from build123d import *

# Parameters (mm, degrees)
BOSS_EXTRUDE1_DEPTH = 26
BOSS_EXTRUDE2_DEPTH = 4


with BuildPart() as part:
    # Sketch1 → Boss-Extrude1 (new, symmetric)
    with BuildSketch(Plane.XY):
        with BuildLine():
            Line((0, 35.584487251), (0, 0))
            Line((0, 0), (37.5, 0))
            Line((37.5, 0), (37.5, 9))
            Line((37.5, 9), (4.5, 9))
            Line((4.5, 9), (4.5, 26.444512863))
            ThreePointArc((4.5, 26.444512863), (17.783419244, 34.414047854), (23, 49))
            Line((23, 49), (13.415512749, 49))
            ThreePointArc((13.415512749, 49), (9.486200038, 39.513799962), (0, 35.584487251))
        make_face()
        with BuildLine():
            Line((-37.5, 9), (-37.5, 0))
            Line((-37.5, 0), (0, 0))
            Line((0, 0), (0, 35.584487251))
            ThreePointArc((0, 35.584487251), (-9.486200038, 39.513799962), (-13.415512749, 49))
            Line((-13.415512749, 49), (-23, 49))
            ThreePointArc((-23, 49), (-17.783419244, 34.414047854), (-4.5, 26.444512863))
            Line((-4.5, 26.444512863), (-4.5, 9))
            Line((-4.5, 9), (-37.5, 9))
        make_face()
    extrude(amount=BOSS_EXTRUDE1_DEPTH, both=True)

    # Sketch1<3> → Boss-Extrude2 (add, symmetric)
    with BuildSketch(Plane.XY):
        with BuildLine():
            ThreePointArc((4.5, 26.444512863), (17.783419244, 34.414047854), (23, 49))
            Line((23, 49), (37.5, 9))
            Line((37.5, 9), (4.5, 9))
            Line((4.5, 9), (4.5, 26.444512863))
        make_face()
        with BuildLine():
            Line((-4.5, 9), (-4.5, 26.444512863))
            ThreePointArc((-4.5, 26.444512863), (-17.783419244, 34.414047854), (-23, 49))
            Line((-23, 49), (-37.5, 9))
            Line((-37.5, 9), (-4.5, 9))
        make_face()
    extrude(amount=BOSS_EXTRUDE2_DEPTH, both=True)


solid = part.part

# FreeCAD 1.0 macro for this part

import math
import FreeCAD as App
import Part
import Sketcher
from FreeCAD import Vector

doc = App.newDocument("Part")
params = doc.addObject("Spreadsheet::Sheet", "Params")
for row, (alias, value) in enumerate([
    ("sketch1_radius", "23 mm"),
    ("sketch1_width", "33 mm"),
    ("sketch1_width2", "75 mm"),
    ("sketch1_height", "9 mm"),
    ("pad1_length", "52 mm"),
    ("sketch2_radius", "23 mm"),
    ("sketch2_width", "33 mm"),
    ("pad2_length", "8 mm"),
], start=1):
    params.set(f"A{row}", alias)
    params.set(f"B{row}", "=" + value)
    params.setAlias(f"B{row}", alias)

body = doc.addObject("PartDesign::Body", "Body")

sketch1 = doc.addObject("Sketcher::SketchObject", "Sketch")
body.addObject(sketch1)
sketch1.AttachmentSupport = (doc.XY_Plane, [""])
sketch1.MapMode = "FlatFace"
sketch1.addGeometry([
    Part.LineSegment(Vector(38, 0, 0), Vector(38, 9, 0)),
    Part.LineSegment(Vector(38, 9, 0), Vector(4, 9, 0)),
    Part.LineSegment(Vector(4, 9, 0), Vector(4, 26, 0)),
    Part.ArcOfCircle(Part.Circle(Vector(0, 49, 0), Vector(0, 0, 1), 23), math.radians(-79), math.radians(0)),
    Part.LineSegment(Vector(23, 49, 0), Vector(13, 49, 0)),
    Part.ArcOfCircle(Part.Circle(Vector(0, 49, 0), Vector(0, 0, 1), 13), math.radians(-90), math.radians(0)),
    Part.ArcOfCircle(Part.Circle(Vector(0, 49, 0), Vector(0, 0, 1), 13), math.radians(180), math.radians(270)),
    Part.LineSegment(Vector(-13, 49, 0), Vector(-23, 49, 0)),
    Part.ArcOfCircle(Part.Circle(Vector(0, 49, 0), Vector(0, 0, 1), 23), math.radians(180), math.radians(259)),
    Part.LineSegment(Vector(-4, 26, 0), Vector(-4, 9, 0)),
    Part.LineSegment(Vector(-4, 9, 0), Vector(-38, 9, 0)),
    Part.LineSegment(Vector(-38, 9, 0), Vector(-38, 0, 0)),
    Part.LineSegment(Vector(-38, 0, 0), Vector(38, 0, 0)),
], False)
sketch1.addConstraint([
    Sketcher.Constraint("Coincident", 0, 2, 1, 1),
    Sketcher.Constraint("Coincident", 1, 2, 2, 1),
    Sketcher.Constraint("Coincident", 2, 2, 3, 1),
    Sketcher.Constraint("Coincident", 3, 2, 4, 1),
    Sketcher.Constraint("Coincident", 4, 2, 5, 2),
    Sketcher.Constraint("Tangent", 5, 1, 6, 2),
    Sketcher.Constraint("Coincident", 6, 1, 7, 1),
    Sketcher.Constraint("Coincident", 7, 2, 8, 1),
    Sketcher.Constraint("Coincident", 8, 2, 9, 1),
    Sketcher.Constraint("Coincident", 9, 2, 10, 1),
    Sketcher.Constraint("Coincident", 10, 2, 11, 1),
    Sketcher.Constraint("Coincident", 11, 2, 12, 1),
    Sketcher.Constraint("Coincident", 12, 2, 0, 1),
    Sketcher.Constraint("Vertical", 0),
    Sketcher.Constraint("Horizontal", 1),
    Sketcher.Constraint("Vertical", 2),
    Sketcher.Constraint("Horizontal", 4),
    Sketcher.Constraint("Horizontal", 7),
    Sketcher.Constraint("Vertical", 9),
    Sketcher.Constraint("Horizontal", 10),
    Sketcher.Constraint("Vertical", 11),
    Sketcher.Constraint("Horizontal", 12),
    Sketcher.Constraint("Coincident", 5, 3, 3, 3),
    Sketcher.Constraint("Coincident", 8, 3, 3, 3),
    Sketcher.Constraint("Equal", 5, 6),
    Sketcher.Constraint("Equal", 3, 8),
    Sketcher.Constraint("Symmetric", 11, 2, 12, 2, -1, 1),
    Sketcher.Constraint("Symmetric", 4, 2, 6, 1, -2),
    Sketcher.Constraint("Symmetric", 1, 2, 9, 2, -2),
    Sketcher.Constraint("PointOnObject", 5, 1, -2),
    Sketcher.Constraint("Horizontal", 8, 3, 3, 2),
    Sketcher.Constraint("Radius", 3, 23.0),
    Sketcher.Constraint("DistanceX", 1, 2, 1, 1, 33.0),
    Sketcher.Constraint("DistanceX", 12, 1, 12, 2, 75.0),
    Sketcher.Constraint("DistanceY", 0, 1, 0, 2, 9.0),
    Sketcher.Constraint("DistanceY", -1, 1, 3, 3, 49.0),
    Sketcher.Constraint("Radius", 5, 13.415513),
])
sketch1.setExpression("Constraints[31]", "Params.sketch1_radius")
sketch1.setExpression("Constraints[32]", "Params.sketch1_width")
sketch1.setExpression("Constraints[33]", "Params.sketch1_width2")
sketch1.setExpression("Constraints[34]", "Params.sketch1_height")
pad1 = doc.addObject("PartDesign::Pad", "Pad")
body.addObject(pad1)
pad1.Profile = sketch1
pad1.setExpression("Length", "Params.pad1_length")
pad1.Midplane = True

sketch2 = doc.addObject("Sketcher::SketchObject", "Sketch001")
body.addObject(sketch2)
sketch2.AttachmentSupport = (doc.XY_Plane, [""])
sketch2.MapMode = "FlatFace"
sketch2.addGeometry([
    Part.ArcOfCircle(Part.Circle(Vector(0, 49, 0), Vector(0, 0, 1), 23), math.radians(-79), math.radians(0)),
    Part.LineSegment(Vector(4, 26, 0), Vector(4, 9, 0)),
    Part.LineSegment(Vector(4, 9, 0), Vector(38, 9, 0)),
    Part.LineSegment(Vector(38, 9, 0), Vector(23, 49, 0)),
    Part.LineSegment(Vector(-4, 9, 0), Vector(-4, 26, 0)),
    Part.ArcOfCircle(Part.Circle(Vector(0, 49, 0), Vector(0, 0, 1), 23), math.radians(180), math.radians(259)),
    Part.LineSegment(Vector(-23, 49, 0), Vector(-38, 9, 0)),
    Part.LineSegment(Vector(-38, 9, 0), Vector(-4, 9, 0)),
], False)
sketch2.addConstraint([
    Sketcher.Constraint("Coincident", 0, 1, 1, 1),
    Sketcher.Constraint("Coincident", 1, 2, 2, 1),
    Sketcher.Constraint("Coincident", 2, 2, 3, 1),
    Sketcher.Constraint("Coincident", 3, 2, 0, 2),
    Sketcher.Constraint("Coincident", 4, 2, 5, 2),
    Sketcher.Constraint("Coincident", 5, 1, 6, 1),
    Sketcher.Constraint("Coincident", 6, 2, 7, 1),
    Sketcher.Constraint("Coincident", 7, 2, 4, 1),
    Sketcher.Constraint("Vertical", 1),
    Sketcher.Constraint("Horizontal", 2),
    Sketcher.Constraint("Vertical", 4),
    Sketcher.Constraint("Horizontal", 7),
    Sketcher.Constraint("Coincident", 5, 3, 0, 3),
    Sketcher.Constraint("Equal", 0, 5),
    Sketcher.Constraint("Symmetric", 0, 1, 4, 2, -2),
    Sketcher.Constraint("Symmetric", 2, 2, 6, 2, -2),
    Sketcher.Constraint("Horizontal", 5, 3, 3, 2),
    Sketcher.Constraint("Horizontal", 3, 2, 5, 1),
    Sketcher.Constraint("Radius", 0, 23.0),
    Sketcher.Constraint("DistanceX", 2, 1, 2, 2, 33.0),
    Sketcher.Constraint("DistanceY", -1, 1, 0, 3, 49.0),
    Sketcher.Constraint("DistanceY", -1, 1, 1, 2, 9.0),
    Sketcher.Constraint("DistanceX", 4, 2, 0, 1, 9.0),
])
sketch2.setExpression("Constraints[18]", "Params.sketch2_radius")
sketch2.setExpression("Constraints[19]", "Params.sketch2_width")
pad2 = doc.addObject("PartDesign::Pad", "Pad001")
body.addObject(pad2)
pad2.Profile = sketch2
pad2.setExpression("Length", "Params.pad2_length")
pad2.Midplane = True

doc.recompute()
